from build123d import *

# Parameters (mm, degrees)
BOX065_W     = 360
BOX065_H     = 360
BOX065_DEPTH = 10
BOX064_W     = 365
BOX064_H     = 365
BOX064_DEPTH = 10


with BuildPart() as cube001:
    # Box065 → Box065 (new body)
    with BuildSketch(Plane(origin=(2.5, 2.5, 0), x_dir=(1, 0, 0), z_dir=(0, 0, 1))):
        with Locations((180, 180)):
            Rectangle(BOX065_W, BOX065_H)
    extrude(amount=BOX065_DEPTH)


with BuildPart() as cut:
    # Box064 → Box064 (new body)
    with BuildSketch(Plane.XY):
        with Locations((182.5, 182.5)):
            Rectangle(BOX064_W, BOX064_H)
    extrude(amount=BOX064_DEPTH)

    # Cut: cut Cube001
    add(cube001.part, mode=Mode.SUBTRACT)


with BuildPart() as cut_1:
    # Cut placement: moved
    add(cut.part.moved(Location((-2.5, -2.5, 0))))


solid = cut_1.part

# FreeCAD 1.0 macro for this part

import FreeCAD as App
import Part
import Sketcher

V = App.Vector
Q = App.Units.Quantity

doc = App.newDocument("Part")
body = doc.addObject("PartDesign::Body", "Body")

sketch1 = doc.addObject("Sketcher::SketchObject", "Sketch")
body.addObject(sketch1)
sketch1.AttachmentSupport = (doc.XY_Plane, [""])
sketch1.MapMode = "FlatFace"
sketch1.addGeometry(Part.LineSegment(V(2, 362, 0), V(2, 2, 0)), False)
sketch1.addGeometry(Part.LineSegment(V(2, 2, 0), V(362, 2, 0)), False)
sketch1.addGeometry(Part.LineSegment(V(362, 2, 0), V(362, 362, 0)), False)
sketch1.addGeometry(Part.LineSegment(V(362, 362, 0), V(2, 362, 0)), False)
sketch1.addConstraint(Sketcher.Constraint("Coincident", 0, 2, 1, 1))
sketch1.addConstraint(Sketcher.Constraint("Coincident", 1, 2, 2, 1))
sketch1.addConstraint(Sketcher.Constraint("Coincident", 2, 2, 3, 1))
sketch1.addConstraint(Sketcher.Constraint("Coincident", 3, 2, 0, 1))
sketch1.addConstraint(Sketcher.Constraint("Vertical", 0))
sketch1.addConstraint(Sketcher.Constraint("Horizontal", 1))
sketch1.addConstraint(Sketcher.Constraint("Vertical", 2))
sketch1.addConstraint(Sketcher.Constraint("Horizontal", 3))
sketch1.addConstraint(Sketcher.Constraint("Equal", 3, 0))
sketch1.addConstraint(Sketcher.Constraint("DistanceX", 1, 1, 1, 2, Q("360 mm")))
sketch1.addConstraint(Sketcher.Constraint("DistanceX", -1, 1, 0, 2, Q("2.5 mm")))
sketch1.addConstraint(Sketcher.Constraint("DistanceY", -1, 1, 0, 2, Q("2.5 mm")))
pad1 = doc.addObject("PartDesign::Pad", "Pad")
body.addObject(pad1)
pad1.Profile = sketch1
pad1.Length = 10
body2 = doc.addObject("PartDesign::Body", "Body001")

sketch2 = doc.addObject("Sketcher::SketchObject", "Sketch001")
body2.addObject(sketch2)
sketch2.AttachmentSupport = (doc.getObject("XY_Plane001"), [""])
sketch2.MapMode = "FlatFace"
sketch2.addGeometry(Part.LineSegment(V(0, 365, 0), V(0, 0, 0)), False)
sketch2.addGeometry(Part.LineSegment(V(0, 0, 0), V(365, 0, 0)), False)
sketch2.addGeometry(Part.LineSegment(V(365, 0, 0), V(365, 365, 0)), False)
sketch2.addGeometry(Part.LineSegment(V(365, 365, 0), V(0, 365, 0)), False)
sketch2.addConstraint(Sketcher.Constraint("Coincident", 0, 2, 1, 1))
sketch2.addConstraint(Sketcher.Constraint("Coincident", 1, 2, 2, 1))
sketch2.addConstraint(Sketcher.Constraint("Coincident", 2, 2, 3, 1))
sketch2.addConstraint(Sketcher.Constraint("Coincident", 3, 2, 0, 1))
sketch2.addConstraint(Sketcher.Constraint("Vertical", 0))
sketch2.addConstraint(Sketcher.Constraint("Horizontal", 1))
sketch2.addConstraint(Sketcher.Constraint("Vertical", 2))
sketch2.addConstraint(Sketcher.Constraint("Horizontal", 3))
sketch2.addConstraint(Sketcher.Constraint("Coincident", 0, 2, -1, 1))
sketch2.addConstraint(Sketcher.Constraint("Equal", 3, 0))
sketch2.addConstraint(Sketcher.Constraint("DistanceX", 1, 1, 1, 2, Q("365 mm")))
pad2 = doc.addObject("PartDesign::Pad", "Pad001")
body2.addObject(pad2)
pad2.Profile = sketch2
pad2.Length = 10
doc.recompute()

boolean = doc.addObject("PartDesign::Boolean", "Boolean")
body2.addObject(boolean)
boolean.Type = "Cut"
boolean.addObjects([body])
body3 = doc.addObject("PartDesign::Body", "Body002")
doc.recompute()

body2.Placement = App.Placement(V(-2.5, -2.5, 0), App.Rotation(V(0, 0, 1), 0))
boolean2 = doc.addObject("PartDesign::Boolean", "Boolean001")
body3.addObject(boolean2)
boolean2.Type = "Fuse"
boolean2.addObjects([body2])

doc.recompute()
